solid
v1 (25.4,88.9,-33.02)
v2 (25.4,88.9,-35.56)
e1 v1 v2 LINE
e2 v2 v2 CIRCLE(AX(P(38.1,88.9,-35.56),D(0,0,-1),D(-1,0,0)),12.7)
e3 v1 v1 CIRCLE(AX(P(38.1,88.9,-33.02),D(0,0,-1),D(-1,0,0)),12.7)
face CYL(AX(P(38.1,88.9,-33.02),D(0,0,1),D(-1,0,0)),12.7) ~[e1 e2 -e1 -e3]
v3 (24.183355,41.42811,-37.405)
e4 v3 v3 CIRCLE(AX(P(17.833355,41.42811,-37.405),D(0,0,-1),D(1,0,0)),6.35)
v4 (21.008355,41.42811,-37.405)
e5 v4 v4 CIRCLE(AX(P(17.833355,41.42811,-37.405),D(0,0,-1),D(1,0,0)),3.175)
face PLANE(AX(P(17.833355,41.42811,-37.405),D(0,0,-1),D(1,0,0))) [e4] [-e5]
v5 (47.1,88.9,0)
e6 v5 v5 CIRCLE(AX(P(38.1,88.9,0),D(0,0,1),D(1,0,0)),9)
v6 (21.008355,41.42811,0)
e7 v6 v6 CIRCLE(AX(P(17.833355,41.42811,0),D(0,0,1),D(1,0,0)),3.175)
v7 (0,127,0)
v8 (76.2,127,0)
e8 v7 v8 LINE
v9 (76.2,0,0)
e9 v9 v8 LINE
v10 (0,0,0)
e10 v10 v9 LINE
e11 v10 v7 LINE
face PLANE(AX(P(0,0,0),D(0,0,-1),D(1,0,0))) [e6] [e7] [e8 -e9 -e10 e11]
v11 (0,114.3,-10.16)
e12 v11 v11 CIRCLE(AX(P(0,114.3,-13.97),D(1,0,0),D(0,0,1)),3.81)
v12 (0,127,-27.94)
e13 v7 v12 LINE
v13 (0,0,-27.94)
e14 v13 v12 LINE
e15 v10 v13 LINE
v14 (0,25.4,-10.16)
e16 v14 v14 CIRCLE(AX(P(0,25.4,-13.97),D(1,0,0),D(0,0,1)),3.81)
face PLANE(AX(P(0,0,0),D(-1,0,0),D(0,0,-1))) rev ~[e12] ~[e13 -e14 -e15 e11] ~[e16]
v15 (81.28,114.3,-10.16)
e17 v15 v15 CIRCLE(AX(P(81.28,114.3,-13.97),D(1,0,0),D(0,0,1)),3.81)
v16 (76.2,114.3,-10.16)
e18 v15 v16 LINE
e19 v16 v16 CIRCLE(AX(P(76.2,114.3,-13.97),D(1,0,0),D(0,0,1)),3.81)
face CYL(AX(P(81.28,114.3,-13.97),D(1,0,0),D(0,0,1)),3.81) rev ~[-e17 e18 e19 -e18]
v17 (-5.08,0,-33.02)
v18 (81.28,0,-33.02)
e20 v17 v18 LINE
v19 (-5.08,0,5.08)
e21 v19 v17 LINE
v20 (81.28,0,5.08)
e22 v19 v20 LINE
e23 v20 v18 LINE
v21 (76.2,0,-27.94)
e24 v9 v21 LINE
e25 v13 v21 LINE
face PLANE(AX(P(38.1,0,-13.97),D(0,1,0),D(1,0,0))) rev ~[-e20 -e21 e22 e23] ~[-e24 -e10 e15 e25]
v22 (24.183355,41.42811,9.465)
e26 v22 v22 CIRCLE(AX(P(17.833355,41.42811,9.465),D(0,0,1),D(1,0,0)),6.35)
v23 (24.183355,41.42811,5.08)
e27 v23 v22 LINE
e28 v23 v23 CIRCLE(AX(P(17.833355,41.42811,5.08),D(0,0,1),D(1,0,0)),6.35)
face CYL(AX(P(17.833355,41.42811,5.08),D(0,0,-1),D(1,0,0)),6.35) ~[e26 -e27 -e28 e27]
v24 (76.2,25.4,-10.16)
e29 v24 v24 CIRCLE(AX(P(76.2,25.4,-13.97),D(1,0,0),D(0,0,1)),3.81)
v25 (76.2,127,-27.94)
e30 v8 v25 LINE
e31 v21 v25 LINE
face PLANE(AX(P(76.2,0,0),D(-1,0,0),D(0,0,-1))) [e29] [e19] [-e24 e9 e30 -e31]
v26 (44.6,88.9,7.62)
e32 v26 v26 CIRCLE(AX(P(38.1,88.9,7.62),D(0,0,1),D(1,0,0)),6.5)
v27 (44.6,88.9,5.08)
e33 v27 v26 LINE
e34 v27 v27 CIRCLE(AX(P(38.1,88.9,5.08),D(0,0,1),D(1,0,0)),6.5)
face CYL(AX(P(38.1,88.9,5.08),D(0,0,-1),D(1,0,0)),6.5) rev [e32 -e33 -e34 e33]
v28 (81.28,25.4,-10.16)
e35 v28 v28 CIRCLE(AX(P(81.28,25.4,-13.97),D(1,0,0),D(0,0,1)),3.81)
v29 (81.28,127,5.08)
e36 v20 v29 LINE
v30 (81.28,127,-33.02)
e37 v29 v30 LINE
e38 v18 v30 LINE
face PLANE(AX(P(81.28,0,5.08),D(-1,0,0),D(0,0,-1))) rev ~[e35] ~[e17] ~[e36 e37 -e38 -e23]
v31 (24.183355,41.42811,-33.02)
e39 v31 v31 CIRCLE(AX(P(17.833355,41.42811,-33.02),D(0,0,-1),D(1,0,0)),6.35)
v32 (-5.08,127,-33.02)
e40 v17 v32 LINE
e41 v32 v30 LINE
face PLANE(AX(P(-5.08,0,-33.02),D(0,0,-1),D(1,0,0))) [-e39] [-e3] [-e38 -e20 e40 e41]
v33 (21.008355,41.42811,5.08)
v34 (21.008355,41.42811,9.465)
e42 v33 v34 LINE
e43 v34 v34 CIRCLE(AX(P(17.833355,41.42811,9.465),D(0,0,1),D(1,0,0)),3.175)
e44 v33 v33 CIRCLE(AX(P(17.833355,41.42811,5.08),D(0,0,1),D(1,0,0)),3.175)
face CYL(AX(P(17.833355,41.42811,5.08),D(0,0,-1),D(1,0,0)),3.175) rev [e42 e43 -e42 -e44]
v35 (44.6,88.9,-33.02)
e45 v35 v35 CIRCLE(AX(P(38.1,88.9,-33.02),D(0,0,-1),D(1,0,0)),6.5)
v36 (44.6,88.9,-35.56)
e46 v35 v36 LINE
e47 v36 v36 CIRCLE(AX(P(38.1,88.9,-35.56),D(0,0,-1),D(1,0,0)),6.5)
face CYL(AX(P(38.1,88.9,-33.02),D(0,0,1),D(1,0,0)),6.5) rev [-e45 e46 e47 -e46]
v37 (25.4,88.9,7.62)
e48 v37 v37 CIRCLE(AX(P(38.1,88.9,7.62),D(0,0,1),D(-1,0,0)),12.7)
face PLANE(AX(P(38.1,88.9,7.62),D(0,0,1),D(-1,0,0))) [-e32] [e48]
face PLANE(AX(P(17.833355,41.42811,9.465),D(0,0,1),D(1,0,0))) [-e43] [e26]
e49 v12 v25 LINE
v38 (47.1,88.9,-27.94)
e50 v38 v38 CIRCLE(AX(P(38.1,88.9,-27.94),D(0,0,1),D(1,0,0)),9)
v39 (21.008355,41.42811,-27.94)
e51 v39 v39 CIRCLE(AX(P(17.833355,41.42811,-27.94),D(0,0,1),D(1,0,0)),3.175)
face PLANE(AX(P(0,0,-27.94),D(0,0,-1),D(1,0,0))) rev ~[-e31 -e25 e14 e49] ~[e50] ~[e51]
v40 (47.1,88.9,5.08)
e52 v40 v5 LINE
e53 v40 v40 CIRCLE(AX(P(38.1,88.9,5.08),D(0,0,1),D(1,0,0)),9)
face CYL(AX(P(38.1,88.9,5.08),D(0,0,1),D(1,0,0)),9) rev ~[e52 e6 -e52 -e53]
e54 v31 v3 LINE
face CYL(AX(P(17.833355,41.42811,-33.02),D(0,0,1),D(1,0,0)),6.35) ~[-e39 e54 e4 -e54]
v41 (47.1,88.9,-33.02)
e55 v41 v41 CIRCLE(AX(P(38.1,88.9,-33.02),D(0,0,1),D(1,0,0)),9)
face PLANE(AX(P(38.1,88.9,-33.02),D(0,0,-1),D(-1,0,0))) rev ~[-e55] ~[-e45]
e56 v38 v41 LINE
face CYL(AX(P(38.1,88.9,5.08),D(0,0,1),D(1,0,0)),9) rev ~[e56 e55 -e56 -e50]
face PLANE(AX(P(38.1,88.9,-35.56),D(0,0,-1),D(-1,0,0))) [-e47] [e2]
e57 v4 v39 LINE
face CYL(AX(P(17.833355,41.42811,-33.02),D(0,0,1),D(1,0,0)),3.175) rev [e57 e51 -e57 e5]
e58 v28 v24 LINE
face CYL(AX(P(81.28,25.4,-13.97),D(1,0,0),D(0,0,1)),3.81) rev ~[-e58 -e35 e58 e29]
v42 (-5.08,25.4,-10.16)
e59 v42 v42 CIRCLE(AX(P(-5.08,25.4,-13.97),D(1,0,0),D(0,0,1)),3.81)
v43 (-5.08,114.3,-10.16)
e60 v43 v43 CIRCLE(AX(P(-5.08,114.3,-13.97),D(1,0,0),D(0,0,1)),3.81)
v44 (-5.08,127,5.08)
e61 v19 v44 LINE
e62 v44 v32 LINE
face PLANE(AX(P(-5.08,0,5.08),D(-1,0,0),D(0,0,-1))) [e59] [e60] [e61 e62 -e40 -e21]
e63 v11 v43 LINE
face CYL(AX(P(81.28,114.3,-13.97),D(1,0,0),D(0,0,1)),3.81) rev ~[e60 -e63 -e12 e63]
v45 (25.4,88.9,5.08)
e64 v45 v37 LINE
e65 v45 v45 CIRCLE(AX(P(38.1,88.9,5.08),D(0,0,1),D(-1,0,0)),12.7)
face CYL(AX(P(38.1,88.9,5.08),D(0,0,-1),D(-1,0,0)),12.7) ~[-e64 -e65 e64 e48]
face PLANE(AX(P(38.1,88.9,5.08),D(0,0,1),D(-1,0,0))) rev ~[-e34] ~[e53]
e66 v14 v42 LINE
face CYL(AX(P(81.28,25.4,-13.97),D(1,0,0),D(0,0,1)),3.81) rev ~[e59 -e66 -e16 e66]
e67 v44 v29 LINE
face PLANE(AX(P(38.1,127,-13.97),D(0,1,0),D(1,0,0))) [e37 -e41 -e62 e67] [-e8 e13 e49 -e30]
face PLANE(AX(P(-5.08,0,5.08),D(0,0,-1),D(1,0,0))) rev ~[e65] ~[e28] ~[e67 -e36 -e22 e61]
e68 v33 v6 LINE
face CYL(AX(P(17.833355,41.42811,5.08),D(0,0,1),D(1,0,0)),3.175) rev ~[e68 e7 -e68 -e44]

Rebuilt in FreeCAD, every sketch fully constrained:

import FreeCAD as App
import Part
import Sketcher

V = App.Vector
Q = App.Units.Quantity


def add_polygon(sketch, points):
    """Adds a closed chain of lines whose ends are joined by coincident constraints."""
    first, n = sketch.GeometryCount, len(points)
    for a, b in zip(points, points[1:] + points[:1]):
        sketch.addGeometry(Part.LineSegment(App.Vector(*a, 0), App.Vector(*b, 0)), False)
    for i in range(n):
        sketch.addConstraint(Sketcher.Constraint("Coincident", first + i, 2, first + (i + 1) % n, 1))

doc = App.newDocument("Part")
body = doc.addObject("PartDesign::Body", "Body")

# Sketch on XZ plane
sketch1 = body.newObject("Sketcher::SketchObject", "Sketch")
sketch1.AttachmentSupport = (doc.getObject("XZ_Plane"), [""])
sketch1.MapMode = "FlatFace"
add_polygon(sketch1, [(-5.08, -33.02), (-5.08, 5.08), (81.28, 5.08), (81.28, -33.02)])  # lines 0-3
add_polygon(sketch1, [(76.2, 0), (0, 0), (0, -27.94), (76.2, -27.94)])  # lines 4-7
sketch1.addConstraint([
    Sketcher.Constraint("Vertical", 0),
    Sketcher.Constraint("Horizontal", 1),
    Sketcher.Constraint("Vertical", 2),
    Sketcher.Constraint("Horizontal", 3),
    Sketcher.Constraint("Horizontal", 4),
    Sketcher.Constraint("Vertical", 5),
    Sketcher.Constraint("Horizontal", 6),
    Sketcher.Constraint("Vertical", 7),
    Sketcher.Constraint("Coincident", 4, 2, -1, 1),
    Sketcher.Constraint("DistanceX", 4, 2, 4, 1, Q("3 in")),
    Sketcher.Constraint("DistanceX", 1, 1, 1, 2, Q("3.4 in")),
    Sketcher.Constraint("DistanceY", 0, 1, 0, 2, Q("1.5 in")),
    Sketcher.Constraint("DistanceY", 5, 2, 5, 1, Q("1.1 in")),
    Sketcher.Constraint("DistanceX", 0, 2, -1, 1, Q("0.2 in")),
    Sketcher.Constraint("DistanceY", -1, 1, 0, 2, Q("0.2 in")),
])
pad1 = body.newObject("PartDesign::Pad", "Pad")
pad1.Profile = sketch1
pad1.Length = Q("5 in")
pad1.Reversed = True

# Sketch on XY plane
sketch2 = body.newObject("Sketcher::SketchObject", "Sketch001")
sketch2.AttachmentSupport = (doc.getObject("XY_Plane"), [""])
sketch2.MapMode = "FlatFace"
sketch2.AttachmentOffset = App.Placement(V(0, 0, 0.2 * 25.4), App.Rotation())
sketch2.addGeometry([
    Part.Circle(V(38.1, 88.9, 0), V(0, 0, 1), 9),
    Part.Circle(V(17.833355, 41.42811, 0), V(0, 0, 1), 3.175),
], False)
sketch2.addConstraint([
    Sketcher.Constraint("Diameter", 1, Q("0.25 in")),
    Sketcher.Constraint("DistanceX", -1, 1, 0, 3, Q("1.5 in")),
    Sketcher.Constraint("DistanceY", -1, 1, 0, 3, Q("3.5 in")),
    Sketcher.Constraint("Diameter", 0, 18.0),
    Sketcher.Constraint("DistanceY", -1, 1, 1, 3, 41.42811),
    Sketcher.Constraint("DistanceX", -1, 1, 1, 3, 17.833355),
])
pocket1 = body.newObject("PartDesign::Pocket", "Pocket")
pocket1.Profile = sketch2
pocket1.Type = "ThroughAll"

# Sketch on YZ plane
sketch3 = body.newObject("Sketcher::SketchObject", "Sketch002")
sketch3.AttachmentSupport = (doc.getObject("YZ_Plane"), [""])
sketch3.MapMode = "FlatFace"
sketch3.AttachmentOffset = App.Placement(V(0, 0, 3.2 * 25.4), App.Rotation())
sketch3.addGeometry([
    Part.Circle(V(114.3, -13.97, 0), V(0, 0, 1), 3.81),
    Part.Circle(V(25.4, -13.97, 0), V(0, 0, 1), 3.81),
], False)
sketch3.addConstraint([
    Sketcher.Constraint("Equal", 0, 1),
    Sketcher.Constraint("Horizontal", 0, 3, 1, 3),
    Sketcher.Constraint("Diameter", 0, Q("0.3 in")),
    Sketcher.Constraint("DistanceX", -1, 1, 1, 3, Q("1 in")),
    Sketcher.Constraint("DistanceX", -1, 1, 0, 3, Q("4.5 in")),
    Sketcher.Constraint("DistanceY", 0, 3, -1, 1, Q("0.55 in")),
])
pocket2 = body.newObject("PartDesign::Pocket", "Pocket001")
pocket2.Profile = sketch3
pocket2.Type = "ThroughAll"
pocket2.Midplane = True

# Sketch on XY plane
sketch4 = body.newObject("Sketcher::SketchObject", "Sketch003")
sketch4.AttachmentSupport = (doc.getObject("XY_Plane"), [""])
sketch4.MapMode = "FlatFace"
sketch4.AttachmentOffset = App.Placement(V(0, 0, -1.3 * 25.4), App.Rotation())
sketch4.addGeometry([
    Part.Circle(V(17.833355, 41.42811, 0), V(0, 0, 1), 6.35),
    Part.Circle(V(17.833355, 41.42811, 0), V(0, 0, 1), 3.175),
], False)
sketch4.addConstraint([
    Sketcher.Constraint("Coincident", 1, 3, 0, 3),
    Sketcher.Constraint("Diameter", 0, Q("0.5 in")),
    Sketcher.Constraint("Diameter", 1, Q("0.25 in")),
    Sketcher.Constraint("DistanceY", -1, 1, 0, 3, 41.42811),
    Sketcher.Constraint("DistanceX", -1, 1, 0, 3, 17.833355),
])
pad2 = body.newObject("PartDesign::Pad", "Pad001")
pad2.Profile = sketch4
pad2.Length = 4.385
pad2.Reversed = True

# Sketch on XY plane
sketch5 = body.newObject("Sketcher::SketchObject", "Sketch004")
sketch5.AttachmentSupport = (doc.getObject("XY_Plane"), [""])
sketch5.MapMode = "FlatFace"
sketch5.AttachmentOffset = App.Placement(V(0, 0, 0.2 * 25.4), App.Rotation())
sketch5.addGeometry([
    Part.Circle(V(17.833355, 41.42811, 0), V(0, 0, 1), 6.35),
    Part.Circle(V(17.833355, 41.42811, 0), V(0, 0, 1), 3.175),
], False)
sketch5.addConstraint([
    Sketcher.Constraint("Coincident", 1, 3, 0, 3),
    Sketcher.Constraint("Diameter", 0, Q("0.5 in")),
    Sketcher.Constraint("Diameter", 1, Q("0.25 in")),
    Sketcher.Constraint("DistanceY", -1, 1, 0, 3, 41.42811),
    Sketcher.Constraint("DistanceX", -1, 1, 0, 3, 17.833355),
])
pad3 = body.newObject("PartDesign::Pad", "Pad002")
pad3.Profile = sketch5
pad3.Length = 4.385

# Sketch on XY plane
sketch6 = body.newObject("Sketcher::SketchObject", "Sketch005")
sketch6.AttachmentSupport = (doc.getObject("XY_Plane"), [""])
sketch6.MapMode = "FlatFace"
sketch6.AttachmentOffset = App.Placement(V(0, 0, 0.2 * 25.4), App.Rotation())
sketch6.addGeometry([
    Part.Circle(V(38.1, 88.9, 0), V(0, 0, 1), 12.7),
    Part.Circle(V(38.1, 88.9, 0), V(0, 0, 1), 6.5),
], False)
sketch6.addConstraint([
    Sketcher.Constraint("Coincident", 1, 3, 0, 3),
    Sketcher.Constraint("Diameter", 0, Q("1 in")),
    Sketcher.Constraint("DistanceX", -1, 1, 0, 3, Q("1.5 in")),
    Sketcher.Constraint("DistanceY", -1, 1, 0, 3, Q("3.5 in")),
    Sketcher.Constraint("Diameter", 1, 13.0),
])
pad4 = body.newObject("PartDesign::Pad", "Pad003")
pad4.Profile = sketch6
pad4.Length = Q("0.1 in")

# Sketch on XY plane
sketch7 = body.newObject("Sketcher::SketchObject", "Sketch006")
sketch7.AttachmentSupport = (doc.getObject("XY_Plane"), [""])
sketch7.MapMode = "FlatFace"
sketch7.AttachmentOffset = App.Placement(V(0, 0, -1.3 * 25.4), App.Rotation())
sketch7.addGeometry([
    Part.Circle(V(38.1, 88.9, 0), V(0, 0, 1), 12.7),
    Part.Circle(V(38.1, 88.9, 0), V(0, 0, 1), 6.5),
], False)
sketch7.addConstraint([
    Sketcher.Constraint("Coincident", 1, 3, 0, 3),
    Sketcher.Constraint("Diameter", 0, Q("1 in")),
    Sketcher.Constraint("DistanceX", -1, 1, 0, 3, Q("1.5 in")),
    Sketcher.Constraint("DistanceY", -1, 1, 0, 3, Q("3.5 in")),
    Sketcher.Constraint("Diameter", 1, 13.0),
])
pad5 = body.newObject("PartDesign::Pad", "Pad004")
pad5.Profile = sketch7
pad5.Length = Q("0.1 in")
pad5.Reversed = True

doc.recompute()
